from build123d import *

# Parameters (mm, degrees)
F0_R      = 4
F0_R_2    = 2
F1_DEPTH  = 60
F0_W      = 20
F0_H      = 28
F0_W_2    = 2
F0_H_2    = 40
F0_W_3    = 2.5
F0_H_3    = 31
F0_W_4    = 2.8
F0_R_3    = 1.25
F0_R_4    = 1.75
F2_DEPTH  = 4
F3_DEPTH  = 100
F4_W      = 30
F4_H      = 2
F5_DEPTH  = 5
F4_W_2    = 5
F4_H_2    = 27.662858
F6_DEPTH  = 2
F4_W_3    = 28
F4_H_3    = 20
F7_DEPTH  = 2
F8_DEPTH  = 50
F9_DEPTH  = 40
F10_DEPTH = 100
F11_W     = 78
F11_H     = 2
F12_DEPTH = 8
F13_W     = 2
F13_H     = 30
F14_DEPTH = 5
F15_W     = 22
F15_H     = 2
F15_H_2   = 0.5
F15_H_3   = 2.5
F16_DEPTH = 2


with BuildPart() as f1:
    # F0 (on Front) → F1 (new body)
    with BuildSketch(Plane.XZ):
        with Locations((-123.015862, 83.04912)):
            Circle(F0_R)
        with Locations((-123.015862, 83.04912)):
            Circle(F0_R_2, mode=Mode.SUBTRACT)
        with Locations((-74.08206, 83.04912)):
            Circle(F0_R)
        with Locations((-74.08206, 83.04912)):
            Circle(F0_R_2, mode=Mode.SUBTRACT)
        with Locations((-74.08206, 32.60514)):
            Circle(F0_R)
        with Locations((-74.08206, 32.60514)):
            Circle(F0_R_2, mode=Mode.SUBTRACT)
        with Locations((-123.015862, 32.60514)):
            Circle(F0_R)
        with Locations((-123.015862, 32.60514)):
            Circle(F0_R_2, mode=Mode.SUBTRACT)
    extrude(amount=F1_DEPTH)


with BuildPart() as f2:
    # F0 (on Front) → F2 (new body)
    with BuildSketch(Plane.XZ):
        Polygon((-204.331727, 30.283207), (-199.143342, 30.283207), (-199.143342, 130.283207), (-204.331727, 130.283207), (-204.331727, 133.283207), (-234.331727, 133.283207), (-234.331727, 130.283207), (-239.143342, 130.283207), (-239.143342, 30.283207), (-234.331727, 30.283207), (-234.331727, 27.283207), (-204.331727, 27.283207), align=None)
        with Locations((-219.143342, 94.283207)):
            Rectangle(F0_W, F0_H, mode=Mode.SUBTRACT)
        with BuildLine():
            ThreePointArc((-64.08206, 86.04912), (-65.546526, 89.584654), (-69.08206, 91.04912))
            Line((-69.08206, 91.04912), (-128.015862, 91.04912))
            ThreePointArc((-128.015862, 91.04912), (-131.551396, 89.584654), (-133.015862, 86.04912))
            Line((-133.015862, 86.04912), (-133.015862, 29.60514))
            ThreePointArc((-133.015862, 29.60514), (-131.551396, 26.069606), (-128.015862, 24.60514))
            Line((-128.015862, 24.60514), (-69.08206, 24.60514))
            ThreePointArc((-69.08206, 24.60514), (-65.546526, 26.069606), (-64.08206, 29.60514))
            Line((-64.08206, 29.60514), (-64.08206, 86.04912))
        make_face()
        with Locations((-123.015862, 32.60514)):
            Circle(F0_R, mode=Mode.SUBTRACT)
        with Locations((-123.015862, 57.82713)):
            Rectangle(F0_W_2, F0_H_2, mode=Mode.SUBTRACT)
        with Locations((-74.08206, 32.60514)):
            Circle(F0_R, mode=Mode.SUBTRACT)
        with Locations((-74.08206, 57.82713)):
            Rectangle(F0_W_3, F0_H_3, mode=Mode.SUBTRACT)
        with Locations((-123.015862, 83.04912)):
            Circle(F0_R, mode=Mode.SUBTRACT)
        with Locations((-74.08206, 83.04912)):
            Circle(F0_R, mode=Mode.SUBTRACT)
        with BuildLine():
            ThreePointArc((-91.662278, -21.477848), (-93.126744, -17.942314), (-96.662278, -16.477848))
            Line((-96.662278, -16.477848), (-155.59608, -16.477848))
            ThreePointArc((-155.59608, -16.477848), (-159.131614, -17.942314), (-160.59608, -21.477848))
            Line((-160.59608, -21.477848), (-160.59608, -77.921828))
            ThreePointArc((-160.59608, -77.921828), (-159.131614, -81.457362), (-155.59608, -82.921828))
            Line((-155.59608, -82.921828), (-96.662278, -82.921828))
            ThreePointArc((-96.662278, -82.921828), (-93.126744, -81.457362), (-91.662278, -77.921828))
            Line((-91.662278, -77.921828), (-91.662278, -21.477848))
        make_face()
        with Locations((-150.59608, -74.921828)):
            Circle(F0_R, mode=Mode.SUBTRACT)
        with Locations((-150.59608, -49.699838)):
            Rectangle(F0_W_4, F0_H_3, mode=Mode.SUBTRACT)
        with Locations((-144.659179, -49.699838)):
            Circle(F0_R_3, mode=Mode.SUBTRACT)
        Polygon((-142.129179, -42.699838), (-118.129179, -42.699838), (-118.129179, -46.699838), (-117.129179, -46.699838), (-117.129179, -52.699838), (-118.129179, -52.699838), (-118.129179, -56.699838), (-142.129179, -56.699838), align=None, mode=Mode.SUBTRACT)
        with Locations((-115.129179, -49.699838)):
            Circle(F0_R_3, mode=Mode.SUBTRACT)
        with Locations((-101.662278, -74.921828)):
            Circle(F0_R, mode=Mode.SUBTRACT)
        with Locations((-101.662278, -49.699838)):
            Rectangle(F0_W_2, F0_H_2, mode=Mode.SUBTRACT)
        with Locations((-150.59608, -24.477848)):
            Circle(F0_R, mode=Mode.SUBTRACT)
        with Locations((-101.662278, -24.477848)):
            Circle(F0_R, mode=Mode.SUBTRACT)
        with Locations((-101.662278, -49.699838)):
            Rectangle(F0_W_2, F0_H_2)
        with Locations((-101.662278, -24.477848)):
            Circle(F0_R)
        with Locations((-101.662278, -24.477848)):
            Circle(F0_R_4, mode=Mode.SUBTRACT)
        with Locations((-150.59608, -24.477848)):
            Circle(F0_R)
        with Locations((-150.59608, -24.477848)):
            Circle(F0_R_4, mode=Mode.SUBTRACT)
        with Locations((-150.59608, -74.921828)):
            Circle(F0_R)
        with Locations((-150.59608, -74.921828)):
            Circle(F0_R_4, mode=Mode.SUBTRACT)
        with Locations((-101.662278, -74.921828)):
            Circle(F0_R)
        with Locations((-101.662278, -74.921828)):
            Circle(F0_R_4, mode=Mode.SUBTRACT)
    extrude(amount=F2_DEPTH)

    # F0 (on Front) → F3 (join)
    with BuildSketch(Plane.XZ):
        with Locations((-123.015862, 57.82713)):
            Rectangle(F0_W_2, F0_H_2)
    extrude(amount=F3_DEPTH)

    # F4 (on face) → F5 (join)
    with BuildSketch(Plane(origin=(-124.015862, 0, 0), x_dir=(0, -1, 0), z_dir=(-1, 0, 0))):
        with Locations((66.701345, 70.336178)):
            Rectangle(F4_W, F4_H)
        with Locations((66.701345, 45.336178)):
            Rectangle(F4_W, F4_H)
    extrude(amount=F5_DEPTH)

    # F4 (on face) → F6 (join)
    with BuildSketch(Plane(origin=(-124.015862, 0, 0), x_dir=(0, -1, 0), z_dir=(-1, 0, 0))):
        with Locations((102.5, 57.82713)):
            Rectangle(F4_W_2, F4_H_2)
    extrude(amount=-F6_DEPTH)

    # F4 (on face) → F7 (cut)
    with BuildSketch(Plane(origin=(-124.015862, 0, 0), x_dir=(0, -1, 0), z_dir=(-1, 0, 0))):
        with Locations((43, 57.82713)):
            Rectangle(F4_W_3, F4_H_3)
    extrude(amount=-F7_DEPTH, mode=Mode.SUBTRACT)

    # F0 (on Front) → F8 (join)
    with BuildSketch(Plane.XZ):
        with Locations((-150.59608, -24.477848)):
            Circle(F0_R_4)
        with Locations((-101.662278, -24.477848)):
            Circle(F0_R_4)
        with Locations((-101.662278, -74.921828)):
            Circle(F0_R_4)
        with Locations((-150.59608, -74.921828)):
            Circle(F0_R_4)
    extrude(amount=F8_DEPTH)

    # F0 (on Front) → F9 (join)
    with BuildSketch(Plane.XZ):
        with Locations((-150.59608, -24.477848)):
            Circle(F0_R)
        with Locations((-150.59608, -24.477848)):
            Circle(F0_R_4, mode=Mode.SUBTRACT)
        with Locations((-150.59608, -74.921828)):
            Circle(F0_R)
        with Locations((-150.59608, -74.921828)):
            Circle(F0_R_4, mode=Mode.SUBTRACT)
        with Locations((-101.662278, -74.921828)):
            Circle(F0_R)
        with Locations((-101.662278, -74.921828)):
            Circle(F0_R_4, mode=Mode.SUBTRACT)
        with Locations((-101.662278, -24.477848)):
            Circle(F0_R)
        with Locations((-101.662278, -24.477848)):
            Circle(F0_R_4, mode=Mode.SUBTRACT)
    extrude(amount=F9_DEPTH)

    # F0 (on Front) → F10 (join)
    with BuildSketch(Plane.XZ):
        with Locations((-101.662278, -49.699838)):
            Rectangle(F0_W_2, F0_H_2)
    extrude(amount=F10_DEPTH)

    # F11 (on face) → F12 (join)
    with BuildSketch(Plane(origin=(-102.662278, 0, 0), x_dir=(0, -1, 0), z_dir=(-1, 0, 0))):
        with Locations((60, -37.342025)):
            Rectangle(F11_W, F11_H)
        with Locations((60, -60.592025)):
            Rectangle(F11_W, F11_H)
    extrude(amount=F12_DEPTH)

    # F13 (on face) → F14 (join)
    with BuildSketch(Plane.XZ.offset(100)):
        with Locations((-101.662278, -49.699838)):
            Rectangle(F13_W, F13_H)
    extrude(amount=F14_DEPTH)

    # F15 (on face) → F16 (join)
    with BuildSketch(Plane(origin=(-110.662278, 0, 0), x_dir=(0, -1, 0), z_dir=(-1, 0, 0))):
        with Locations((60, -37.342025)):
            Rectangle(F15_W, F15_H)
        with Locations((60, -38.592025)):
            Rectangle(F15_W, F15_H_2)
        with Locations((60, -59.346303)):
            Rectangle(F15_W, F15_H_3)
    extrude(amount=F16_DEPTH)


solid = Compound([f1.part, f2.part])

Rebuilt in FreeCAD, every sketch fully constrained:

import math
import FreeCAD as App
import Part
import Sketcher

doc = App.newDocument("Part")
body = doc.addObject("PartDesign::Body", "Body")
body.AllowCompound = True

sketch1 = body.newObject("Sketcher::SketchObject", "Sketch")
sketch1.AttachmentSupport = (doc.getObject("XZ_Plane"), [""])
sketch1.MapMode = "FlatFace"
sketch1.addGeometry(Part.Circle(App.Vector(-123, 83, 0), App.Vector(0, 0, 1), 4), False)
sketch1.addGeometry(Part.Circle(App.Vector(-123, 83, 0), App.Vector(0, 0, 1), 2), False)
sketch1.addGeometry(Part.Circle(App.Vector(-74.1, 83, 0), App.Vector(0, 0, 1), 4), False)
sketch1.addGeometry(Part.Circle(App.Vector(-74.1, 83, 0), App.Vector(0, 0, 1), 2), False)
sketch1.addGeometry(Part.Circle(App.Vector(-74.1, 32.6, 0), App.Vector(0, 0, 1), 4), False)
sketch1.addGeometry(Part.Circle(App.Vector(-74.1, 32.6, 0), App.Vector(0, 0, 1), 2), False)
sketch1.addGeometry(Part.Circle(App.Vector(-123, 32.6, 0), App.Vector(0, 0, 1), 4), False)
sketch1.addGeometry(Part.Circle(App.Vector(-123, 32.6, 0), App.Vector(0, 0, 1), 2), False)
sketch1.addConstraint(Sketcher.Constraint("Coincident", 1, 3, 0, 3))
sketch1.addConstraint(Sketcher.Constraint("Coincident", 3, 3, 2, 3))
sketch1.addConstraint(Sketcher.Constraint("Coincident", 5, 3, 4, 3))
sketch1.addConstraint(Sketcher.Constraint("Coincident", 7, 3, 6, 3))
sketch1.addConstraint(Sketcher.Constraint("Equal", 0, 2))
sketch1.addConstraint(Sketcher.Constraint("Equal", 1, 3))
sketch1.addConstraint(Sketcher.Constraint("Equal", 2, 4))
sketch1.addConstraint(Sketcher.Constraint("Equal", 3, 5))
sketch1.addConstraint(Sketcher.Constraint("Equal", 4, 6))
sketch1.addConstraint(Sketcher.Constraint("Equal", 5, 7))
sketch1.addConstraint(Sketcher.Constraint("Horizontal", 1, 3, 2, 3))
sketch1.addConstraint(Sketcher.Constraint("Horizontal", 5, 3, 6, 3))
sketch1.addConstraint(Sketcher.Constraint("Vertical", 3, 3, 4, 3))
sketch1.addConstraint(Sketcher.Constraint("Vertical", 1, 3, 6, 3))
sketch1.addConstraint(Sketcher.Constraint("Diameter", 0, 8.0))
sketch1.addConstraint(Sketcher.Constraint("Diameter", 1, 4.0))
sketch1.addConstraint(Sketcher.Constraint("DistanceX", 0, 3, -1, 1, 123.015862))
sketch1.addConstraint(Sketcher.Constraint("DistanceY", -1, 1, 0, 3, 83.04912))
sketch1.addConstraint(Sketcher.Constraint("DistanceX", 2, 3, -1, 1, 74.08206))
sketch1.addConstraint(Sketcher.Constraint("DistanceY", -1, 1, 4, 3, 32.60514))
pad1 = body.newObject("PartDesign::Pad", "Pad")
pad1.Profile = sketch1
pad1.Length = 60
body2 = doc.addObject("PartDesign::Body", "Body001")
body2.AllowCompound = True

sketch2 = body2.newObject("Sketcher::SketchObject", "Sketch001")
sketch2.AttachmentSupport = (doc.getObject("XZ_Plane001"), [""])
sketch2.MapMode = "FlatFace"
sketch2.addGeometry(Part.LineSegment(App.Vector(-204.3, 30.3, 0), App.Vector(-199.1, 30.3, 0)), False)
sketch2.addGeometry(Part.LineSegment(App.Vector(-199.1, 30.3, 0), App.Vector(-199.1, 130.3, 0)), False)
sketch2.addGeometry(Part.LineSegment(App.Vector(-199.1, 130.3, 0), App.Vector(-204.3, 130.3, 0)), False)
sketch2.addGeometry(Part.LineSegment(App.Vector(-204.3, 130.3, 0), App.Vector(-204.3, 133.3, 0)), False)
sketch2.addGeometry(Part.LineSegment(App.Vector(-204.3, 133.3, 0), App.Vector(-234.3, 133.3, 0)), False)
sketch2.addGeometry(Part.LineSegment(App.Vector(-234.3, 133.3, 0), App.Vector(-234.3, 130.3, 0)), False)
sketch2.addGeometry(Part.LineSegment(App.Vector(-234.3, 130.3, 0), App.Vector(-239.1, 130.3, 0)), False)
sketch2.addGeometry(Part.LineSegment(App.Vector(-239.1, 130.3, 0), App.Vector(-239.1, 30.3, 0)), False)
sketch2.addGeometry(Part.LineSegment(App.Vector(-239.1, 30.3, 0), App.Vector(-234.3, 30.3, 0)), False)
sketch2.addGeometry(Part.LineSegment(App.Vector(-234.3, 30.3, 0), App.Vector(-234.3, 27.3, 0)), False)
sketch2.addGeometry(Part.LineSegment(App.Vector(-234.3, 27.3, 0), App.Vector(-204.3, 27.3, 0)), False)
sketch2.addGeometry(Part.LineSegment(App.Vector(-204.3, 27.3, 0), App.Vector(-204.3, 30.3, 0)), False)
sketch2.addGeometry(Part.LineSegment(App.Vector(-209.1, 80.3, 0), App.Vector(-229.1, 80.3, 0)), False)
sketch2.addGeometry(Part.LineSegment(App.Vector(-229.1, 80.3, 0), App.Vector(-229.1, 108.3, 0)), False)
sketch2.addGeometry(Part.LineSegment(App.Vector(-229.1, 108.3, 0), App.Vector(-209.1, 108.3, 0)), False)
sketch2.addGeometry(Part.LineSegment(App.Vector(-209.1, 108.3, 0), App.Vector(-209.1, 80.3, 0)), False)
sketch2.addGeometry(Part.ArcOfCircle(Part.Circle(App.Vector(-69.1, 86, 0), App.Vector(0, 0, 1), 5), math.radians(0), math.radians(90)), False)
sketch2.addGeometry(Part.LineSegment(App.Vector(-69.1, 91, 0), App.Vector(-128, 91, 0)), False)
sketch2.addGeometry(Part.ArcOfCircle(Part.Circle(App.Vector(-128, 86, 0), App.Vector(0, 0, 1), 5), math.radians(90), math.radians(180)), False)
sketch2.addGeometry(Part.LineSegment(App.Vector(-133, 86, 0), App.Vector(-133, 29.6, 0)), False)
sketch2.addGeometry(Part.ArcOfCircle(Part.Circle(App.Vector(-128, 29.6, 0), App.Vector(0, 0, 1), 5), math.radians(180), math.radians(270)), False)
sketch2.addGeometry(Part.LineSegment(App.Vector(-128, 24.6, 0), App.Vector(-69.1, 24.6, 0)), False)
sketch2.addGeometry(Part.ArcOfCircle(Part.Circle(App.Vector(-69.1, 29.6, 0), App.Vector(0, 0, 1), 5), math.radians(-90), math.radians(0)), False)
sketch2.addGeometry(Part.LineSegment(App.Vector(-64.1, 29.6, 0), App.Vector(-64.1, 86, 0)), False)
sketch2.addGeometry(Part.Circle(App.Vector(-123, 32.6, 0), App.Vector(0, 0, 1), 4), False)
sketch2.addGeometry(Part.Circle(App.Vector(-74.1, 32.6, 0), App.Vector(0, 0, 1), 4), False)
sketch2.addGeometry(Part.LineSegment(App.Vector(-122, 37.8, 0), App.Vector(-124, 37.8, 0)), False)
sketch2.addGeometry(Part.LineSegment(App.Vector(-124, 37.8, 0), App.Vector(-124, 77.8, 0)), False)
sketch2.addGeometry(Part.LineSegment(App.Vector(-124, 77.8, 0), App.Vector(-122, 77.8, 0)), False)
sketch2.addGeometry(Part.LineSegment(App.Vector(-122, 77.8, 0), App.Vector(-122, 37.8, 0)), False)
sketch2.addGeometry(Part.Circle(App.Vector(-123, 83, 0), App.Vector(0, 0, 1), 4), False)
sketch2.addGeometry(Part.LineSegment(App.Vector(-72.8, 42.3, 0), App.Vector(-75.3, 42.3, 0)), False)
sketch2.addGeometry(Part.LineSegment(App.Vector(-75.3, 42.3, 0), App.Vector(-75.3, 73.3, 0)), False)
sketch2.addGeometry(Part.LineSegment(App.Vector(-75.3, 73.3, 0), App.Vector(-72.8, 73.3, 0)), False)
sketch2.addGeometry(Part.LineSegment(App.Vector(-72.8, 73.3, 0), App.Vector(-72.8, 42.3, 0)), False)
sketch2.addGeometry(Part.Circle(App.Vector(-74.1, 83, 0), App.Vector(0, 0, 1), 4), False)
sketch2.addGeometry(Part.ArcOfCircle(Part.Circle(App.Vector(-96.7, -21.5, 0), App.Vector(0, 0, 1), 5), math.radians(0), math.radians(90)), False)
sketch2.addGeometry(Part.LineSegment(App.Vector(-96.7, -16.5, 0), App.Vector(-155.6, -16.5, 0)), False)
sketch2.addGeometry(Part.ArcOfCircle(Part.Circle(App.Vector(-155.6, -21.5, 0), App.Vector(0, 0, 1), 5), math.radians(90), math.radians(180)), False)
sketch2.addGeometry(Part.LineSegment(App.Vector(-160.6, -21.5, 0), App.Vector(-160.6, -77.9, 0)), False)
sketch2.addGeometry(Part.ArcOfCircle(Part.Circle(App.Vector(-155.6, -77.9, 0), App.Vector(0, 0, 1), 5), math.radians(180), math.radians(270)), False)
sketch2.addGeometry(Part.LineSegment(App.Vector(-155.6, -82.9, 0), App.Vector(-96.7, -82.9, 0)), False)
sketch2.addGeometry(Part.ArcOfCircle(Part.Circle(App.Vector(-96.7, -77.9, 0), App.Vector(0, 0, 1), 5), math.radians(-90), math.radians(0)), False)
sketch2.addGeometry(Part.LineSegment(App.Vector(-91.7, -77.9, 0), App.Vector(-91.7, -21.5, 0)), False)
sketch2.addGeometry(Part.Circle(App.Vector(-150.6, -74.9, 0), App.Vector(0, 0, 1), 1.8), False)
sketch2.addGeometry(Part.Circle(App.Vector(-101.7, -74.9, 0), App.Vector(0, 0, 1), 1.8), False)
sketch2.addGeometry(Part.LineSegment(App.Vector(-149.2, -65.2, 0), App.Vector(-152, -65.2, 0)), False)
sketch2.addGeometry(Part.LineSegment(App.Vector(-152, -65.2, 0), App.Vector(-152, -34.2, 0)), False)
sketch2.addGeometry(Part.LineSegment(App.Vector(-152, -34.2, 0), App.Vector(-149.2, -34.2, 0)), False)
sketch2.addGeometry(Part.LineSegment(App.Vector(-149.2, -34.2, 0), App.Vector(-149.2, -65.2, 0)), False)
sketch2.addGeometry(Part.Circle(App.Vector(-144.7, -49.7, 0), App.Vector(0, 0, 1), 1.2), False)
sketch2.addGeometry(Part.LineSegment(App.Vector(-142.1, -56.7, 0), App.Vector(-142.1, -42.7, 0)), False)
sketch2.addGeometry(Part.LineSegment(App.Vector(-142.1, -42.7, 0), App.Vector(-118.1, -42.7, 0)), False)
sketch2.addGeometry(Part.LineSegment(App.Vector(-118.1, -42.7, 0), App.Vector(-118.1, -46.7, 0)), False)
sketch2.addGeometry(Part.LineSegment(App.Vector(-118.1, -46.7, 0), App.Vector(-117.1, -46.7, 0)), False)
sketch2.addGeometry(Part.LineSegment(App.Vector(-117.1, -46.7, 0), App.Vector(-117.1, -52.7, 0)), False)
sketch2.addGeometry(Part.LineSegment(App.Vector(-117.1, -52.7, 0), App.Vector(-118.1, -52.7, 0)), False)
sketch2.addGeometry(Part.LineSegment(App.Vector(-118.1, -52.7, 0), App.Vector(-118.1, -56.7, 0)), False)
sketch2.addGeometry(Part.LineSegment(App.Vector(-118.1, -56.7, 0), App.Vector(-142.1, -56.7, 0)), False)
sketch2.addGeometry(Part.Circle(App.Vector(-150.6, -24.5, 0), App.Vector(0, 0, 1), 1.8), False)
sketch2.addGeometry(Part.Circle(App.Vector(-115.1, -49.7, 0), App.Vector(0, 0, 1), 1.2), False)
sketch2.addGeometry(Part.Circle(App.Vector(-101.7, -24.5, 0), App.Vector(0, 0, 1), 1.8), False)
sketch2.addConstraint(Sketcher.Constraint("Coincident", 0, 2, 1, 1))
sketch2.addConstraint(Sketcher.Constraint("Coincident", 1, 2, 2, 1))
sketch2.addConstraint(Sketcher.Constraint("Coincident", 2, 2, 3, 1))
sketch2.addConstraint(Sketcher.Constraint("Coincident", 3, 2, 4, 1))
sketch2.addConstraint(Sketcher.Constraint("Coincident", 4, 2, 5, 1))
sketch2.addConstraint(Sketcher.Constraint("Coincident", 5, 2, 6, 1))
sketch2.addConstraint(Sketcher.Constraint("Coincident", 6, 2, 7, 1))
sketch2.addConstraint(Sketcher.Constraint("Coincident", 7, 2, 8, 1))
sketch2.addConstraint(Sketcher.Constraint("Coincident", 8, 2, 9, 1))
sketch2.addConstraint(Sketcher.Constraint("Coincident", 9, 2, 10, 1))
sketch2.addConstraint(Sketcher.Constraint("Coincident", 10, 2, 11, 1))
sketch2.addConstraint(Sketcher.Constraint("Coincident", 11, 2, 0, 1))
sketch2.addConstraint(Sketcher.Constraint("Coincident", 12, 2, 13, 1))
sketch2.addConstraint(Sketcher.Constraint("Coincident", 13, 2, 14, 1))
sketch2.addConstraint(Sketcher.Constraint("Coincident", 14, 2, 15, 1))
sketch2.addConstraint(Sketcher.Constraint("Coincident", 15, 2, 12, 1))
sketch2.addConstraint(Sketcher.Constraint("Tangent", 16, 2, 17, 1))
sketch2.addConstraint(Sketcher.Constraint("Tangent", 17, 2, 18, 1))
sketch2.addConstraint(Sketcher.Constraint("Tangent", 18, 2, 19, 1))
sketch2.addConstraint(Sketcher.Constraint("Tangent", 19, 2, 20, 1))
sketch2.addConstraint(Sketcher.Constraint("Tangent", 20, 2, 21, 1))
sketch2.addConstraint(Sketcher.Constraint("Tangent", 21, 2, 22, 1))
sketch2.addConstraint(Sketcher.Constraint("Tangent", 22, 2, 23, 1))
sketch2.addConstraint(Sketcher.Constraint("Tangent", 23, 2, 16, 1))
sketch2.addConstraint(Sketcher.Constraint("Coincident", 26, 2, 27, 1))
sketch2.addConstraint(Sketcher.Constraint("Coincident", 27, 2, 28, 1))
sketch2.addConstraint(Sketcher.Constraint("Coincident", 28, 2, 29, 1))
sketch2.addConstraint(Sketcher.Constraint("Coincident", 29, 2, 26, 1))
sketch2.addConstraint(Sketcher.Constraint("Coincident", 31, 2, 32, 1))
sketch2.addConstraint(Sketcher.Constraint("Coincident", 32, 2, 33, 1))
sketch2.addConstraint(Sketcher.Constraint("Coincident", 33, 2, 34, 1))
sketch2.addConstraint(Sketcher.Constraint("Coincident", 34, 2, 31, 1))
sketch2.addConstraint(Sketcher.Constraint("Tangent", 36, 2, 37, 1))
sketch2.addConstraint(Sketcher.Constraint("Tangent", 37, 2, 38, 1))
sketch2.addConstraint(Sketcher.Constraint("Tangent", 38, 2, 39, 1))
sketch2.addConstraint(Sketcher.Constraint("Tangent", 39, 2, 40, 1))
sketch2.addConstraint(Sketcher.Constraint("Tangent", 40, 2, 41, 1))
sketch2.addConstraint(Sketcher.Constraint("Tangent", 41, 2, 42, 1))
sketch2.addConstraint(Sketcher.Constraint("Tangent", 42, 2, 43, 1))
sketch2.addConstraint(Sketcher.Constraint("Tangent", 43, 2, 36, 1))
sketch2.addConstraint(Sketcher.Constraint("Coincident", 46, 2, 47, 1))
sketch2.addConstraint(Sketcher.Constraint("Coincident", 47, 2, 48, 1))
sketch2.addConstraint(Sketcher.Constraint("Coincident", 48, 2, 49, 1))
sketch2.addConstraint(Sketcher.Constraint("Coincident", 49, 2, 46, 1))
sketch2.addConstraint(Sketcher.Constraint("Coincident", 51, 2, 52, 1))
sketch2.addConstraint(Sketcher.Constraint("Coincident", 52, 2, 53, 1))
sketch2.addConstraint(Sketcher.Constraint("Coincident", 53, 2, 54, 1))
sketch2.addConstraint(Sketcher.Constraint("Coincident", 54, 2, 55, 1))
sketch2.addConstraint(Sketcher.Constraint("Coincident", 55, 2, 56, 1))
sketch2.addConstraint(Sketcher.Constraint("Coincident", 56, 2, 57, 1))
sketch2.addConstraint(Sketcher.Constraint("Coincident", 57, 2, 58, 1))
sketch2.addConstraint(Sketcher.Constraint("Coincident", 58, 2, 51, 1))
sketch2.addConstraint(Sketcher.Constraint("Horizontal", 0))
sketch2.addConstraint(Sketcher.Constraint("Vertical", 1))
sketch2.addConstraint(Sketcher.Constraint("Horizontal", 2))
sketch2.addConstraint(Sketcher.Constraint("Vertical", 3))
sketch2.addConstraint(Sketcher.Constraint("Horizontal", 4))
sketch2.addConstraint(Sketcher.Constraint("Vertical", 5))
sketch2.addConstraint(Sketcher.Constraint("Horizontal", 6))
sketch2.addConstraint(Sketcher.Constraint("Vertical", 7))
sketch2.addConstraint(Sketcher.Constraint("Horizontal", 8))
sketch2.addConstraint(Sketcher.Constraint("Vertical", 9))
sketch2.addConstraint(Sketcher.Constraint("Horizontal", 10))
sketch2.addConstraint(Sketcher.Constraint("Vertical", 11))
sketch2.addConstraint(Sketcher.Constraint("Horizontal", 12))
sketch2.addConstraint(Sketcher.Constraint("Vertical", 13))
sketch2.addConstraint(Sketcher.Constraint("Horizontal", 14))
sketch2.addConstraint(Sketcher.Constraint("Vertical", 15))
sketch2.addConstraint(Sketcher.Constraint("Horizontal", 17))
sketch2.addConstraint(Sketcher.Constraint("Vertical", 19))
sketch2.addConstraint(Sketcher.Constraint("Horizontal", 21))
sketch2.addConstraint(Sketcher.Constraint("Vertical", 23))
sketch2.addConstraint(Sketcher.Constraint("Horizontal", 26))
sketch2.addConstraint(Sketcher.Constraint("Vertical", 27))
sketch2.addConstraint(Sketcher.Constraint("Horizontal", 28))
sketch2.addConstraint(Sketcher.Constraint("Vertical", 29))
sketch2.addConstraint(Sketcher.Constraint("Horizontal", 31))
sketch2.addConstraint(Sketcher.Constraint("Vertical", 32))
sketch2.addConstraint(Sketcher.Constraint("Horizontal", 33))
sketch2.addConstraint(Sketcher.Constraint("Vertical", 34))
sketch2.addConstraint(Sketcher.Constraint("Horizontal", 37))
sketch2.addConstraint(Sketcher.Constraint("Vertical", 39))
sketch2.addConstraint(Sketcher.Constraint("Horizontal", 41))
sketch2.addConstraint(Sketcher.Constraint("Vertical", 43))
sketch2.addConstraint(Sketcher.Constraint("Horizontal", 46))
sketch2.addConstraint(Sketcher.Constraint("Vertical", 47))
sketch2.addConstraint(Sketcher.Constraint("Horizontal", 48))
sketch2.addConstraint(Sketcher.Constraint("Vertical", 49))
sketch2.addConstraint(Sketcher.Constraint("Vertical", 51))
sketch2.addConstraint(Sketcher.Constraint("Horizontal", 52))
sketch2.addConstraint(Sketcher.Constraint("Vertical", 53))
sketch2.addConstraint(Sketcher.Constraint("Horizontal", 54))
sketch2.addConstraint(Sketcher.Constraint("Vertical", 55))
sketch2.addConstraint(Sketcher.Constraint("Horizontal", 56))
sketch2.addConstraint(Sketcher.Constraint("Vertical", 57))
sketch2.addConstraint(Sketcher.Constraint("Horizontal", 58))
sketch2.addConstraint(Sketcher.Constraint("Equal", 16, 18))
sketch2.addConstraint(Sketcher.Constraint("Equal", 18, 20))
sketch2.addConstraint(Sketcher.Constraint("Equal", 20, 22))
sketch2.addConstraint(Sketcher.Constraint("Equal", 24, 25))
sketch2.addConstraint(Sketcher.Constraint("Equal", 25, 30))
sketch2.addConstraint(Sketcher.Constraint("Equal", 30, 35))
sketch2.addConstraint(Sketcher.Constraint("Equal", 22, 36))
sketch2.addConstraint(Sketcher.Constraint("Equal", 36, 38))
sketch2.addConstraint(Sketcher.Constraint("Equal", 38, 40))
sketch2.addConstraint(Sketcher.Constraint("Equal", 40, 42))
sketch2.addConstraint(Sketcher.Constraint("Equal", 44, 45))
sketch2.addConstraint(Sketcher.Constraint("Equal", 45, 59))
sketch2.addConstraint(Sketcher.Constraint("Equal", 50, 60))
sketch2.addConstraint(Sketcher.Constraint("Equal", 59, 61))
sketch2.addConstraint(Sketcher.Constraint("Horizontal", 24, 3, 25, 3))
sketch2.addConstraint(Sketcher.Constraint("Horizontal", 30, 3, 35, 3))
sketch2.addConstraint(Sketcher.Constraint("Horizontal", 44, 3, 45, 3))
sketch2.addConstraint(Sketcher.Constraint("Horizontal", 50, 3, 60, 3))
sketch2.addConstraint(Sketcher.Constraint("Horizontal", 59, 3, 61, 3))
sketch2.addConstraint(Sketcher.Constraint("Horizontal", 2, 2, 5, 2))
sketch2.addConstraint(Sketcher.Constraint("Horizontal", 0, 2, 7, 2))
sketch2.addConstraint(Sketcher.Constraint("Vertical", 24, 3, 30, 3))
sketch2.addConstraint(Sketcher.Constraint("Vertical", 25, 3, 35, 3))
sketch2.addConstraint(Sketcher.Constraint("Vertical", 44, 3, 59, 3))
sketch2.addConstraint(Sketcher.Constraint("Vertical", 45, 3, 61, 3))
sketch2.addConstraint(Sketcher.Constraint("Vertical", 5, 2, 8, 2))
sketch2.addConstraint(Sketcher.Constraint("Vertical", 3, 2, 10, 2))
sketch2.addConstraint(Sketcher.Constraint("Vertical", 53, 2, 56, 2))
sketch2.addConstraint(Sketcher.Constraint("Equal", 21, 37))
sketch2.addConstraint(Sketcher.Constraint("Equal", 5, 9))
sketch2.addConstraint(Sketcher.Constraint("Equal", 23, 39))
sketch2.addConstraint(Sketcher.Constraint("Equal", 34, 47))
sketch2.addConstraint(Sketcher.Constraint("Equal", 53, 57))
sketch2.addConstraint(Sketcher.Constraint("Diameter", 24, 8.0))
sketch2.addConstraint(Sketcher.Constraint("Radius", 16, 5.0))
sketch2.addConstraint(Sketcher.Constraint("Diameter", 44, 3.5))
sketch2.addConstraint(Sketcher.Constraint("Diameter", 50, 2.5))
sketch2.addConstraint(Sketcher.Constraint("DistanceX", 4, 2, 4, 1, 30.0))
sketch2.addConstraint(Sketcher.Constraint("DistanceX", 12, 2, 12, 1, 20.0))
sketch2.addConstraint(Sketcher.Constraint("DistanceX", 26, 2, 26, 1, 2.0))
sketch2.addConstraint(Sketcher.Constraint("DistanceX", 52, 1, 52, 2, 24.0))
sketch2.addConstraint(Sketcher.Constraint("DistanceX", 54, 1, 54, 2, 1.0))
sketch2.addConstraint(Sketcher.Constraint("DistanceY", 1, 1, 1, 2, 100.0))
sketch2.addConstraint(Sketcher.Constraint("DistanceY", 3, 1, 3, 2, 3.0))
sketch2.addConstraint(Sketcher.Constraint("DistanceY", 13, 1, 13, 2, 28.0))
sketch2.addConstraint(Sketcher.Constraint("DistanceY", 27, 1, 27, 2, 40.0))
sketch2.addConstraint(Sketcher.Constraint("DistanceY", 32, 1, 32, 2, 31.0))
sketch2.addConstraint(Sketcher.Constraint("DistanceY", 51, 1, 51, 2, 14.0))
sketch2.addConstraint(Sketcher.Constraint("DistanceY", 53, 2, 53, 1, 4.0))
sketch2.addConstraint(Sketcher.Constraint("DistanceX", 31, 2, 31, 1, 2.5))
sketch2.addConstraint(Sketcher.Constraint("DistanceX", 46, 2, 46, 1, 2.8))
sketch2.addConstraint(Sketcher.Constraint("DistanceY", 19, 2, 19, 1, 56.44398))
sketch2.addConstraint(Sketcher.Constraint("DistanceX", 0, 1, 0, 2, 5.188385))
sketch2.addConstraint(Sketcher.Constraint("DistanceX", 6, 2, 6, 1, 4.811615))
sketch2.addConstraint(Sketcher.Constraint("DistanceX", 17, 2, 17, 1, 58.933802))
sketch2.addConstraint(Sketcher.Constraint("DistanceX", 16, 3, -1, 1, 69.08206))
sketch2.addConstraint(Sketcher.Constraint("DistanceY", -1, 1, 16, 3, 86.04912))
sketch2.addConstraint(Sketcher.Constraint("DistanceX", 24, 3, -1, 1, 123.015862))
sketch2.addConstraint(Sketcher.Constraint("DistanceY", -1, 1, 24, 3, 32.60514))
sketch2.addConstraint(Sketcher.Constraint("DistanceX", 25, 3, -1, 1, 74.08206))
sketch2.addConstraint(Sketcher.Constraint("DistanceY", -1, 1, 30, 3, 83.04912))
sketch2.addConstraint(Sketcher.Constraint("DistanceX", 38, 3, -1, 1, 155.59608))
sketch2.addConstraint(Sketcher.Constraint("DistanceY", 40, 3, -1, 1, 77.921828))
sketch2.addConstraint(Sketcher.Constraint("DistanceX", 44, 3, -1, 1, 150.59608))
sketch2.addConstraint(Sketcher.Constraint("DistanceY", 44, 3, -1, 1, 74.921828))
sketch2.addConstraint(Sketcher.Constraint("DistanceX", 45, 3, -1, 1, 101.662278))
sketch2.addConstraint(Sketcher.Constraint("DistanceX", 50, 3, -1, 1, 144.659179))
sketch2.addConstraint(Sketcher.Constraint("DistanceY", 59, 3, -1, 1, 24.477848))
sketch2.addConstraint(Sketcher.Constraint("DistanceX", 60, 3, -1, 1, 115.129179))
sketch2.addConstraint(Sketcher.Constraint("DistanceX", 0, 2, -1, 1, 199.143342))
sketch2.addConstraint(Sketcher.Constraint("DistanceX", 12, 2, -1, 1, 229.143342))
sketch2.addConstraint(Sketcher.Constraint("DistanceX", 26, 2, -1, 1, 124.015862))
sketch2.addConstraint(Sketcher.Constraint("DistanceY", -1, 1, 26, 2, 37.82713))
sketch2.addConstraint(Sketcher.Constraint("DistanceX", 31, 2, -1, 1, 75.33206))
sketch2.addConstraint(Sketcher.Constraint("DistanceY", -1, 1, 31, 2, 42.32713))
sketch2.addConstraint(Sketcher.Constraint("DistanceX", 46, 2, -1, 1, 151.99608))
sketch2.addConstraint(Sketcher.Constraint("DistanceY", 46, 2, -1, 1, 65.199838))
sketch2.addConstraint(Sketcher.Constraint("DistanceX", 51, 2, -1, 1, 142.129179))
sketch2.addConstraint(Sketcher.Constraint("DistanceY", 50, 3, -1, 1, 49.699838))
sketch2.addConstraint(Sketcher.Constraint("DistanceY", -1, 1, 0, 2, 30.283207))
sketch2.addConstraint(Sketcher.Constraint("DistanceY", -1, 1, 12, 2, 80.283207))
sketch2.addConstraint(Sketcher.Constraint("DistanceY", 51, 2, -1, 1, 42.699838))
pad2 = body2.newObject("PartDesign::Pad", "Pad001")
pad2.Profile = sketch2
pad2.Length = 4

sketch3 = body2.newObject("Sketcher::SketchObject", "Sketch002")
sketch3.AttachmentSupport = (doc.getObject("XZ_Plane001"), [""])
sketch3.MapMode = "FlatFace"
sketch3.addGeometry(Part.LineSegment(App.Vector(-124, 77.8, 0), App.Vector(-124, 37.8, 0)), False)
sketch3.addGeometry(Part.LineSegment(App.Vector(-124, 37.8, 0), App.Vector(-122, 37.8, 0)), False)
sketch3.addGeometry(Part.LineSegment(App.Vector(-122, 37.8, 0), App.Vector(-122, 77.8, 0)), False)
sketch3.addGeometry(Part.LineSegment(App.Vector(-122, 77.8, 0), App.Vector(-124, 77.8, 0)), False)
sketch3.addConstraint(Sketcher.Constraint("Coincident", 0, 2, 1, 1))
sketch3.addConstraint(Sketcher.Constraint("Coincident", 1, 2, 2, 1))
sketch3.addConstraint(Sketcher.Constraint("Coincident", 2, 2, 3, 1))
sketch3.addConstraint(Sketcher.Constraint("Coincident", 3, 2, 0, 1))
sketch3.addConstraint(Sketcher.Constraint("Vertical", 0))
sketch3.addConstraint(Sketcher.Constraint("Horizontal", 1))
sketch3.addConstraint(Sketcher.Constraint("Vertical", 2))
sketch3.addConstraint(Sketcher.Constraint("Horizontal", 3))
sketch3.addConstraint(Sketcher.Constraint("DistanceX", 1, 1, 1, 2, 2.0))
sketch3.addConstraint(Sketcher.Constraint("DistanceY", 0, 2, 0, 1, 40.0))
sketch3.addConstraint(Sketcher.Constraint("DistanceX", 0, 2, -1, 1, 124.015862))
sketch3.addConstraint(Sketcher.Constraint("DistanceY", -1, 1, 0, 2, 37.82713))
pad3 = body2.newObject("PartDesign::Pad", "Pad002")
pad3.Profile = sketch3
pad3.Length = 100

sketch4 = body2.newObject("Sketcher::SketchObject", "Sketch003")
sketch4.AttachmentSupport = (doc.getObject("YZ_Plane001"), [""])
sketch4.MapMode = "FlatFace"
sketch4.AttachmentOffset = App.Placement(App.Vector(0, 0, -124.015862), App.Rotation())
sketch4.addGeometry(Part.LineSegment(App.Vector(-51.7, 71.3, 0), App.Vector(-51.7, 69.3, 0)), False)
sketch4.addGeometry(Part.LineSegment(App.Vector(-51.7, 69.3, 0), App.Vector(-81.7, 69.3, 0)), False)
sketch4.addGeometry(Part.LineSegment(App.Vector(-81.7, 69.3, 0), App.Vector(-81.7, 71.3, 0)), False)
sketch4.addGeometry(Part.LineSegment(App.Vector(-81.7, 71.3, 0), App.Vector(-51.7, 71.3, 0)), False)
sketch4.addGeometry(Part.LineSegment(App.Vector(-51.7, 46.3, 0), App.Vector(-51.7, 44.3, 0)), False)
sketch4.addGeometry(Part.LineSegment(App.Vector(-51.7, 44.3, 0), App.Vector(-81.7, 44.3, 0)), False)
sketch4.addGeometry(Part.LineSegment(App.Vector(-81.7, 44.3, 0), App.Vector(-81.7, 46.3, 0)), False)
sketch4.addGeometry(Part.LineSegment(App.Vector(-81.7, 46.3, 0), App.Vector(-51.7, 46.3, 0)), False)
sketch4.addConstraint(Sketcher.Constraint("Coincident", 0, 2, 1, 1))
sketch4.addConstraint(Sketcher.Constraint("Coincident", 1, 2, 2, 1))
sketch4.addConstraint(Sketcher.Constraint("Coincident", 2, 2, 3, 1))
sketch4.addConstraint(Sketcher.Constraint("Coincident", 3, 2, 0, 1))
sketch4.addConstraint(Sketcher.Constraint("Coincident", 4, 2, 5, 1))
sketch4.addConstraint(Sketcher.Constraint("Coincident", 5, 2, 6, 1))
sketch4.addConstraint(Sketcher.Constraint("Coincident", 6, 2, 7, 1))
sketch4.addConstraint(Sketcher.Constraint("Coincident", 7, 2, 4, 1))
sketch4.addConstraint(Sketcher.Constraint("Vertical", 0))
sketch4.addConstraint(Sketcher.Constraint("Horizontal", 1))
sketch4.addConstraint(Sketcher.Constraint("Vertical", 2))
sketch4.addConstraint(Sketcher.Constraint("Horizontal", 3))
sketch4.addConstraint(Sketcher.Constraint("Vertical", 4))
sketch4.addConstraint(Sketcher.Constraint("Horizontal", 5))
sketch4.addConstraint(Sketcher.Constraint("Vertical", 6))
sketch4.addConstraint(Sketcher.Constraint("Horizontal", 7))
sketch4.addConstraint(Sketcher.Constraint("Vertical", 3, 2, 4, 2))
sketch4.addConstraint(Sketcher.Constraint("Vertical", 2, 2, 5, 2))
sketch4.addConstraint(Sketcher.Constraint("Equal", 2, 4))
sketch4.addConstraint(Sketcher.Constraint("DistanceX", 1, 2, 1, 1, 30.0))
sketch4.addConstraint(Sketcher.Constraint("DistanceY", 0, 2, 0, 1, 2.0))
sketch4.addConstraint(Sketcher.Constraint("DistanceY", 4, 2, 0, 2, 25.0))
sketch4.addConstraint(Sketcher.Constraint("DistanceY", -1, 1, 0, 2, 69.336178))
sketch4.addConstraint(Sketcher.Constraint("DistanceX", 0, 2, -1, 1, 51.701345))
pad4 = body2.newObject("PartDesign::Pad", "Pad003")
pad4.Profile = sketch4
pad4.Length = 5
pad4.Reversed = True

sketch5 = body2.newObject("Sketcher::SketchObject", "Sketch004")
sketch5.AttachmentSupport = (doc.getObject("YZ_Plane001"), [""])
sketch5.MapMode = "FlatFace"
sketch5.AttachmentOffset = App.Placement(App.Vector(0, 0, -124.015862), App.Rotation())
sketch5.addGeometry(Part.LineSegment(App.Vector(-100, 72, 0), App.Vector(-100, 44, 0)), False)
sketch5.addGeometry(Part.LineSegment(App.Vector(-100, 44, 0), App.Vector(-105, 44, 0)), False)
sketch5.addGeometry(Part.LineSegment(App.Vector(-105, 44, 0), App.Vector(-105, 72, 0)), False)
sketch5.addGeometry(Part.LineSegment(App.Vector(-105, 72, 0), App.Vector(-100, 72, 0)), False)
sketch5.addConstraint(Sketcher.Constraint("Coincident", 0, 2, 1, 1))
sketch5.addConstraint(Sketcher.Constraint("Coincident", 1, 2, 2, 1))
sketch5.addConstraint(Sketcher.Constraint("Coincident", 2, 2, 3, 1))
sketch5.addConstraint(Sketcher.Constraint("Coincident", 3, 2, 0, 1))
sketch5.addConstraint(Sketcher.Constraint("Vertical", 0))
sketch5.addConstraint(Sketcher.Constraint("Horizontal", 1))
sketch5.addConstraint(Sketcher.Constraint("Vertical", 2))
sketch5.addConstraint(Sketcher.Constraint("Horizontal", 3))
sketch5.addConstraint(Sketcher.Constraint("DistanceX", 1, 2, 1, 1, 5.0))
sketch5.addConstraint(Sketcher.Constraint("DistanceX", 0, 2, -1, 1, 100.0))
sketch5.addConstraint(Sketcher.Constraint("DistanceY", 0, 2, 0, 1, 27.662858))
sketch5.addConstraint(Sketcher.Constraint("DistanceY", -1, 1, 0, 2, 43.995701))
pad5 = body2.newObject("PartDesign::Pad", "Pad004")
pad5.Profile = sketch5
pad5.Length = 2

sketch6 = body2.newObject("Sketcher::SketchObject", "Sketch005")
sketch6.AttachmentSupport = (doc.getObject("YZ_Plane001"), [""])
sketch6.MapMode = "FlatFace"
sketch6.AttachmentOffset = App.Placement(App.Vector(0, 0, -124.015862), App.Rotation())
sketch6.addGeometry(Part.LineSegment(App.Vector(-29, 68, 0), App.Vector(-29, 48, 0)), False)
sketch6.addGeometry(Part.LineSegment(App.Vector(-29, 48, 0), App.Vector(-57, 48, 0)), False)
sketch6.addGeometry(Part.LineSegment(App.Vector(-57, 48, 0), App.Vector(-57, 68, 0)), False)
sketch6.addGeometry(Part.LineSegment(App.Vector(-57, 68, 0), App.Vector(-29, 68, 0)), False)
sketch6.addConstraint(Sketcher.Constraint("Coincident", 0, 2, 1, 1))
sketch6.addConstraint(Sketcher.Constraint("Coincident", 1, 2, 2, 1))
sketch6.addConstraint(Sketcher.Constraint("Coincident", 2, 2, 3, 1))
sketch6.addConstraint(Sketcher.Constraint("Coincident", 3, 2, 0, 1))
sketch6.addConstraint(Sketcher.Constraint("Vertical", 0))
sketch6.addConstraint(Sketcher.Constraint("Horizontal", 1))
sketch6.addConstraint(Sketcher.Constraint("Vertical", 2))
sketch6.addConstraint(Sketcher.Constraint("Horizontal", 3))
sketch6.addConstraint(Sketcher.Constraint("DistanceX", 1, 2, 1, 1, 28.0))
sketch6.addConstraint(Sketcher.Constraint("DistanceY", 0, 2, 0, 1, 20.0))
sketch6.addConstraint(Sketcher.Constraint("DistanceX", 0, 2, -1, 1, 29.0))
sketch6.addConstraint(Sketcher.Constraint("DistanceY", -1, 1, 0, 2, 47.82713))
pocket1 = body2.newObject("PartDesign::Pocket", "Pocket")
pocket1.Profile = sketch6
pocket1.Length = 2
pocket1.Reversed = True

sketch7 = body2.newObject("Sketcher::SketchObject", "Sketch006")
sketch7.AttachmentSupport = (doc.getObject("XZ_Plane001"), [""])
sketch7.MapMode = "FlatFace"
sketch7.addGeometry(Part.Circle(App.Vector(-150.6, -24.5, 0), App.Vector(0, 0, 1), 1.8), False)
sketch7.addGeometry(Part.Circle(App.Vector(-101.7, -24.5, 0), App.Vector(0, 0, 1), 1.8), False)
sketch7.addGeometry(Part.Circle(App.Vector(-101.7, -74.9, 0), App.Vector(0, 0, 1), 1.8), False)
sketch7.addGeometry(Part.Circle(App.Vector(-150.6, -74.9, 0), App.Vector(0, 0, 1), 1.8), False)
sketch7.addConstraint(Sketcher.Constraint("Equal", 0, 1))
sketch7.addConstraint(Sketcher.Constraint("Equal", 1, 2))
sketch7.addConstraint(Sketcher.Constraint("Equal", 2, 3))
sketch7.addConstraint(Sketcher.Constraint("Horizontal", 0, 3, 1, 3))
sketch7.addConstraint(Sketcher.Constraint("Horizontal", 2, 3, 3, 3))
sketch7.addConstraint(Sketcher.Constraint("Vertical", 1, 3, 2, 3))
sketch7.addConstraint(Sketcher.Constraint("Vertical", 0, 3, 3, 3))
sketch7.addConstraint(Sketcher.Constraint("Diameter", 0, 3.5))
sketch7.addConstraint(Sketcher.Constraint("DistanceX", 0, 3, -1, 1, 150.59608))
sketch7.addConstraint(Sketcher.Constraint("DistanceY", 0, 3, -1, 1, 24.477848))
sketch7.addConstraint(Sketcher.Constraint("DistanceX", 1, 3, -1, 1, 101.662278))
sketch7.addConstraint(Sketcher.Constraint("DistanceY", 2, 3, -1, 1, 74.921828))
pad6 = body2.newObject("PartDesign::Pad", "Pad005")
pad6.Profile = sketch7
pad6.Length = 50

sketch8 = body2.newObject("Sketcher::SketchObject", "Sketch007")
sketch8.AttachmentSupport = (doc.getObject("XZ_Plane001"), [""])
sketch8.MapMode = "FlatFace"
sketch8.addGeometry(Part.Circle(App.Vector(-150.6, -24.5, 0), App.Vector(0, 0, 1), 4), False)
sketch8.addGeometry(Part.Circle(App.Vector(-150.6, -24.5, 0), App.Vector(0, 0, 1), 1.8), False)
sketch8.addGeometry(Part.Circle(App.Vector(-150.6, -74.9, 0), App.Vector(0, 0, 1), 4), False)
sketch8.addGeometry(Part.Circle(App.Vector(-150.6, -74.9, 0), App.Vector(0, 0, 1), 1.8), False)
sketch8.addGeometry(Part.Circle(App.Vector(-101.7, -74.9, 0), App.Vector(0, 0, 1), 4), False)
sketch8.addGeometry(Part.Circle(App.Vector(-101.7, -74.9, 0), App.Vector(0, 0, 1), 1.8), False)
sketch8.addGeometry(Part.Circle(App.Vector(-101.7, -24.5, 0), App.Vector(0, 0, 1), 4), False)
sketch8.addGeometry(Part.Circle(App.Vector(-101.7, -24.5, 0), App.Vector(0, 0, 1), 1.8), False)
sketch8.addConstraint(Sketcher.Constraint("Coincident", 1, 3, 0, 3))
sketch8.addConstraint(Sketcher.Constraint("Coincident", 3, 3, 2, 3))
sketch8.addConstraint(Sketcher.Constraint("Coincident", 5, 3, 4, 3))
sketch8.addConstraint(Sketcher.Constraint("Coincident", 7, 3, 6, 3))
sketch8.addConstraint(Sketcher.Constraint("Equal", 0, 2))
sketch8.addConstraint(Sketcher.Constraint("Equal", 1, 3))
sketch8.addConstraint(Sketcher.Constraint("Equal", 2, 4))
sketch8.addConstraint(Sketcher.Constraint("Equal", 3, 5))
sketch8.addConstraint(Sketcher.Constraint("Equal", 4, 6))
sketch8.addConstraint(Sketcher.Constraint("Equal", 5, 7))
sketch8.addConstraint(Sketcher.Constraint("Horizontal", 3, 3, 4, 3))
sketch8.addConstraint(Sketcher.Constraint("Horizontal", 1, 3, 6, 3))
sketch8.addConstraint(Sketcher.Constraint("Vertical", 1, 3, 2, 3))
sketch8.addConstraint(Sketcher.Constraint("Vertical", 5, 3, 6, 3))
sketch8.addConstraint(Sketcher.Constraint("Diameter", 0, 8.0))
sketch8.addConstraint(Sketcher.Constraint("Diameter", 1, 3.5))
sketch8.addConstraint(Sketcher.Constraint("DistanceX", 0, 3, -1, 1, 150.59608))
sketch8.addConstraint(Sketcher.Constraint("DistanceY", 0, 3, -1, 1, 24.477848))
sketch8.addConstraint(Sketcher.Constraint("DistanceY", 2, 3, -1, 1, 74.921828))
sketch8.addConstraint(Sketcher.Constraint("DistanceX", 4, 3, -1, 1, 101.662278))
pad7 = body2.newObject("PartDesign::Pad", "Pad006")
pad7.Profile = sketch8
pad7.Length = 40

sketch9 = body2.newObject("Sketcher::SketchObject", "Sketch008")
sketch9.AttachmentSupport = (doc.getObject("XZ_Plane001"), [""])
sketch9.MapMode = "FlatFace"
sketch9.addGeometry(Part.LineSegment(App.Vector(-102.7, -29.7, 0), App.Vector(-102.7, -69.7, 0)), False)
sketch9.addGeometry(Part.LineSegment(App.Vector(-102.7, -69.7, 0), App.Vector(-100.7, -69.7, 0)), False)
sketch9.addGeometry(Part.LineSegment(App.Vector(-100.7, -69.7, 0), App.Vector(-100.7, -29.7, 0)), False)
sketch9.addGeometry(Part.LineSegment(App.Vector(-100.7, -29.7, 0), App.Vector(-102.7, -29.7, 0)), False)
sketch9.addConstraint(Sketcher.Constraint("Coincident", 0, 2, 1, 1))
sketch9.addConstraint(Sketcher.Constraint("Coincident", 1, 2, 2, 1))
sketch9.addConstraint(Sketcher.Constraint("Coincident", 2, 2, 3, 1))
sketch9.addConstraint(Sketcher.Constraint("Coincident", 3, 2, 0, 1))
sketch9.addConstraint(Sketcher.Constraint("Vertical", 0))
sketch9.addConstraint(Sketcher.Constraint("Horizontal", 1))
sketch9.addConstraint(Sketcher.Constraint("Vertical", 2))
sketch9.addConstraint(Sketcher.Constraint("Horizontal", 3))
sketch9.addConstraint(Sketcher.Constraint("DistanceX", 1, 1, 1, 2, 2.0))
sketch9.addConstraint(Sketcher.Constraint("DistanceY", 0, 2, 0, 1, 40.0))
sketch9.addConstraint(Sketcher.Constraint("DistanceX", 0, 2, -1, 1, 102.662278))
sketch9.addConstraint(Sketcher.Constraint("DistanceY", 0, 2, -1, 1, 69.699838))
pad8 = body2.newObject("PartDesign::Pad", "Pad007")
pad8.Profile = sketch9
pad8.Length = 100

sketch10 = body2.newObject("Sketcher::SketchObject", "Sketch009")
sketch10.AttachmentSupport = (doc.getObject("YZ_Plane001"), [""])
sketch10.MapMode = "FlatFace"
sketch10.AttachmentOffset = App.Placement(App.Vector(0, 0, -102.662278), App.Rotation())
sketch10.addGeometry(Part.LineSegment(App.Vector(-21, -36.3, 0), App.Vector(-21, -38.3, 0)), False)
sketch10.addGeometry(Part.LineSegment(App.Vector(-21, -38.3, 0), App.Vector(-99, -38.3, 0)), False)
sketch10.addGeometry(Part.LineSegment(App.Vector(-99, -38.3, 0), App.Vector(-99, -36.3, 0)), False)
sketch10.addGeometry(Part.LineSegment(App.Vector(-99, -36.3, 0), App.Vector(-21, -36.3, 0)), False)
sketch10.addGeometry(Part.LineSegment(App.Vector(-21, -59.6, 0), App.Vector(-21, -61.6, 0)), False)
sketch10.addGeometry(Part.LineSegment(App.Vector(-21, -61.6, 0), App.Vector(-99, -61.6, 0)), False)
sketch10.addGeometry(Part.LineSegment(App.Vector(-99, -61.6, 0), App.Vector(-99, -59.6, 0)), False)
sketch10.addGeometry(Part.LineSegment(App.Vector(-99, -59.6, 0), App.Vector(-21, -59.6, 0)), False)
sketch10.addConstraint(Sketcher.Constraint("Coincident", 0, 2, 1, 1))
sketch10.addConstraint(Sketcher.Constraint("Coincident", 1, 2, 2, 1))
sketch10.addConstraint(Sketcher.Constraint("Coincident", 2, 2, 3, 1))
sketch10.addConstraint(Sketcher.Constraint("Coincident", 3, 2, 0, 1))
sketch10.addConstraint(Sketcher.Constraint("Coincident", 4, 2, 5, 1))
sketch10.addConstraint(Sketcher.Constraint("Coincident", 5, 2, 6, 1))
sketch10.addConstraint(Sketcher.Constraint("Coincident", 6, 2, 7, 1))
sketch10.addConstraint(Sketcher.Constraint("Coincident", 7, 2, 4, 1))
sketch10.addConstraint(Sketcher.Constraint("Vertical", 0))
sketch10.addConstraint(Sketcher.Constraint("Horizontal", 1))
sketch10.addConstraint(Sketcher.Constraint("Vertical", 2))
sketch10.addConstraint(Sketcher.Constraint("Horizontal", 3))
sketch10.addConstraint(Sketcher.Constraint("Vertical", 4))
sketch10.addConstraint(Sketcher.Constraint("Horizontal", 5))
sketch10.addConstraint(Sketcher.Constraint("Vertical", 6))
sketch10.addConstraint(Sketcher.Constraint("Horizontal", 7))
sketch10.addConstraint(Sketcher.Constraint("Vertical", 3, 2, 4, 2))
sketch10.addConstraint(Sketcher.Constraint("Vertical", 2, 2, 5, 2))
sketch10.addConstraint(Sketcher.Constraint("Equal", 2, 4))
sketch10.addConstraint(Sketcher.Constraint("DistanceX", 1, 2, 1, 1, 78.0))
sketch10.addConstraint(Sketcher.Constraint("DistanceY", 0, 2, 0, 1, 2.0))
sketch10.addConstraint(Sketcher.Constraint("DistanceX", 0, 2, -1, 1, 21.0))
sketch10.addConstraint(Sketcher.Constraint("DistanceY", 4, 2, 0, 2, 23.25))
sketch10.addConstraint(Sketcher.Constraint("DistanceY", 0, 2, -1, 1, 38.342025))
pad9 = body2.newObject("PartDesign::Pad", "Pad008")
pad9.Profile = sketch10
pad9.Length = 8
pad9.Reversed = True

sketch11 = body2.newObject("Sketcher::SketchObject", "Sketch010")
sketch11.AttachmentSupport = (doc.getObject("XZ_Plane001"), [""])
sketch11.MapMode = "FlatFace"
sketch11.AttachmentOffset = App.Placement(App.Vector(0, 0, 100), App.Rotation())
sketch11.addGeometry(Part.LineSegment(App.Vector(-102.7, -34.7, 0), App.Vector(-102.7, -64.7, 0)), False)
sketch11.addGeometry(Part.LineSegment(App.Vector(-102.7, -64.7, 0), App.Vector(-100.7, -64.7, 0)), False)
sketch11.addGeometry(Part.LineSegment(App.Vector(-100.7, -64.7, 0), App.Vector(-100.7, -34.7, 0)), False)
sketch11.addGeometry(Part.LineSegment(App.Vector(-100.7, -34.7, 0), App.Vector(-102.7, -34.7, 0)), False)
sketch11.addConstraint(Sketcher.Constraint("Coincident", 0, 2, 1, 1))
sketch11.addConstraint(Sketcher.Constraint("Coincident", 1, 2, 2, 1))
sketch11.addConstraint(Sketcher.Constraint("Coincident", 2, 2, 3, 1))
sketch11.addConstraint(Sketcher.Constraint("Coincident", 3, 2, 0, 1))
sketch11.addConstraint(Sketcher.Constraint("Vertical", 0))
sketch11.addConstraint(Sketcher.Constraint("Horizontal", 1))
sketch11.addConstraint(Sketcher.Constraint("Vertical", 2))
sketch11.addConstraint(Sketcher.Constraint("Horizontal", 3))
sketch11.addConstraint(Sketcher.Constraint("DistanceX", 1, 1, 1, 2, 2.0))
sketch11.addConstraint(Sketcher.Constraint("DistanceY", 0, 2, 0, 1, 30.0))
sketch11.addConstraint(Sketcher.Constraint("DistanceX", 0, 2, -1, 1, 102.662278))
sketch11.addConstraint(Sketcher.Constraint("DistanceY", 0, 2, -1, 1, 64.699838))
pad10 = body2.newObject("PartDesign::Pad", "Pad009")
pad10.Profile = sketch11
pad10.Length = 5

sketch12 = body2.newObject("Sketcher::SketchObject", "Sketch011")
sketch12.AttachmentSupport = (doc.getObject("YZ_Plane001"), [""])
sketch12.MapMode = "FlatFace"
sketch12.AttachmentOffset = App.Placement(App.Vector(0, 0, -110.662278), App.Rotation())
sketch12.addGeometry(Part.LineSegment(App.Vector(-49, -36.3, 0), App.Vector(-49, -38.8, 0)), False)
sketch12.addGeometry(Part.LineSegment(App.Vector(-49, -38.8, 0), App.Vector(-71, -38.8, 0)), False)
sketch12.addGeometry(Part.LineSegment(App.Vector(-71, -38.8, 0), App.Vector(-71, -36.3, 0)), False)
sketch12.addGeometry(Part.LineSegment(App.Vector(-71, -36.3, 0), App.Vector(-49, -36.3, 0)), False)
sketch12.addGeometry(Part.LineSegment(App.Vector(-49, -58.1, 0), App.Vector(-49, -60.6, 0)), False)
sketch12.addGeometry(Part.LineSegment(App.Vector(-49, -60.6, 0), App.Vector(-71, -60.6, 0)), False)
sketch12.addGeometry(Part.LineSegment(App.Vector(-71, -60.6, 0), App.Vector(-71, -58.1, 0)), False)
sketch12.addGeometry(Part.LineSegment(App.Vector(-71, -58.1, 0), App.Vector(-49, -58.1, 0)), False)
sketch12.addConstraint(Sketcher.Constraint("Coincident", 0, 2, 1, 1))
sketch12.addConstraint(Sketcher.Constraint("Coincident", 1, 2, 2, 1))
sketch12.addConstraint(Sketcher.Constraint("Coincident", 2, 2, 3, 1))
sketch12.addConstraint(Sketcher.Constraint("Coincident", 3, 2, 0, 1))
sketch12.addConstraint(Sketcher.Constraint("Coincident", 4, 2, 5, 1))
sketch12.addConstraint(Sketcher.Constraint("Coincident", 5, 2, 6, 1))
sketch12.addConstraint(Sketcher.Constraint("Coincident", 6, 2, 7, 1))
sketch12.addConstraint(Sketcher.Constraint("Coincident", 7, 2, 4, 1))
sketch12.addConstraint(Sketcher.Constraint("Vertical", 0))
sketch12.addConstraint(Sketcher.Constraint("Horizontal", 1))
sketch12.addConstraint(Sketcher.Constraint("Vertical", 2))
sketch12.addConstraint(Sketcher.Constraint("Horizontal", 3))
sketch12.addConstraint(Sketcher.Constraint("Vertical", 4))
sketch12.addConstraint(Sketcher.Constraint("Horizontal", 5))
sketch12.addConstraint(Sketcher.Constraint("Vertical", 6))
sketch12.addConstraint(Sketcher.Constraint("Horizontal", 7))
sketch12.addConstraint(Sketcher.Constraint("Vertical", 3, 2, 4, 2))
sketch12.addConstraint(Sketcher.Constraint("Vertical", 2, 2, 5, 2))
sketch12.addConstraint(Sketcher.Constraint("Equal", 2, 4))
sketch12.addConstraint(Sketcher.Constraint("DistanceX", 1, 2, 1, 1, 22.0))
sketch12.addConstraint(Sketcher.Constraint("DistanceY", 0, 2, 0, 1, 2.5))
sketch12.addConstraint(Sketcher.Constraint("DistanceX", 0, 2, -1, 1, 49.0))
sketch12.addConstraint(Sketcher.Constraint("DistanceY", 0, 2, -1, 1, 38.842025))
sketch12.addConstraint(Sketcher.Constraint("DistanceY", 4, 2, -1, 1, 60.596303))
pad11 = body2.newObject("PartDesign::Pad", "Pad010")
pad11.Profile = sketch12
pad11.Length = 2
pad11.Reversed = True

doc.recompute()
